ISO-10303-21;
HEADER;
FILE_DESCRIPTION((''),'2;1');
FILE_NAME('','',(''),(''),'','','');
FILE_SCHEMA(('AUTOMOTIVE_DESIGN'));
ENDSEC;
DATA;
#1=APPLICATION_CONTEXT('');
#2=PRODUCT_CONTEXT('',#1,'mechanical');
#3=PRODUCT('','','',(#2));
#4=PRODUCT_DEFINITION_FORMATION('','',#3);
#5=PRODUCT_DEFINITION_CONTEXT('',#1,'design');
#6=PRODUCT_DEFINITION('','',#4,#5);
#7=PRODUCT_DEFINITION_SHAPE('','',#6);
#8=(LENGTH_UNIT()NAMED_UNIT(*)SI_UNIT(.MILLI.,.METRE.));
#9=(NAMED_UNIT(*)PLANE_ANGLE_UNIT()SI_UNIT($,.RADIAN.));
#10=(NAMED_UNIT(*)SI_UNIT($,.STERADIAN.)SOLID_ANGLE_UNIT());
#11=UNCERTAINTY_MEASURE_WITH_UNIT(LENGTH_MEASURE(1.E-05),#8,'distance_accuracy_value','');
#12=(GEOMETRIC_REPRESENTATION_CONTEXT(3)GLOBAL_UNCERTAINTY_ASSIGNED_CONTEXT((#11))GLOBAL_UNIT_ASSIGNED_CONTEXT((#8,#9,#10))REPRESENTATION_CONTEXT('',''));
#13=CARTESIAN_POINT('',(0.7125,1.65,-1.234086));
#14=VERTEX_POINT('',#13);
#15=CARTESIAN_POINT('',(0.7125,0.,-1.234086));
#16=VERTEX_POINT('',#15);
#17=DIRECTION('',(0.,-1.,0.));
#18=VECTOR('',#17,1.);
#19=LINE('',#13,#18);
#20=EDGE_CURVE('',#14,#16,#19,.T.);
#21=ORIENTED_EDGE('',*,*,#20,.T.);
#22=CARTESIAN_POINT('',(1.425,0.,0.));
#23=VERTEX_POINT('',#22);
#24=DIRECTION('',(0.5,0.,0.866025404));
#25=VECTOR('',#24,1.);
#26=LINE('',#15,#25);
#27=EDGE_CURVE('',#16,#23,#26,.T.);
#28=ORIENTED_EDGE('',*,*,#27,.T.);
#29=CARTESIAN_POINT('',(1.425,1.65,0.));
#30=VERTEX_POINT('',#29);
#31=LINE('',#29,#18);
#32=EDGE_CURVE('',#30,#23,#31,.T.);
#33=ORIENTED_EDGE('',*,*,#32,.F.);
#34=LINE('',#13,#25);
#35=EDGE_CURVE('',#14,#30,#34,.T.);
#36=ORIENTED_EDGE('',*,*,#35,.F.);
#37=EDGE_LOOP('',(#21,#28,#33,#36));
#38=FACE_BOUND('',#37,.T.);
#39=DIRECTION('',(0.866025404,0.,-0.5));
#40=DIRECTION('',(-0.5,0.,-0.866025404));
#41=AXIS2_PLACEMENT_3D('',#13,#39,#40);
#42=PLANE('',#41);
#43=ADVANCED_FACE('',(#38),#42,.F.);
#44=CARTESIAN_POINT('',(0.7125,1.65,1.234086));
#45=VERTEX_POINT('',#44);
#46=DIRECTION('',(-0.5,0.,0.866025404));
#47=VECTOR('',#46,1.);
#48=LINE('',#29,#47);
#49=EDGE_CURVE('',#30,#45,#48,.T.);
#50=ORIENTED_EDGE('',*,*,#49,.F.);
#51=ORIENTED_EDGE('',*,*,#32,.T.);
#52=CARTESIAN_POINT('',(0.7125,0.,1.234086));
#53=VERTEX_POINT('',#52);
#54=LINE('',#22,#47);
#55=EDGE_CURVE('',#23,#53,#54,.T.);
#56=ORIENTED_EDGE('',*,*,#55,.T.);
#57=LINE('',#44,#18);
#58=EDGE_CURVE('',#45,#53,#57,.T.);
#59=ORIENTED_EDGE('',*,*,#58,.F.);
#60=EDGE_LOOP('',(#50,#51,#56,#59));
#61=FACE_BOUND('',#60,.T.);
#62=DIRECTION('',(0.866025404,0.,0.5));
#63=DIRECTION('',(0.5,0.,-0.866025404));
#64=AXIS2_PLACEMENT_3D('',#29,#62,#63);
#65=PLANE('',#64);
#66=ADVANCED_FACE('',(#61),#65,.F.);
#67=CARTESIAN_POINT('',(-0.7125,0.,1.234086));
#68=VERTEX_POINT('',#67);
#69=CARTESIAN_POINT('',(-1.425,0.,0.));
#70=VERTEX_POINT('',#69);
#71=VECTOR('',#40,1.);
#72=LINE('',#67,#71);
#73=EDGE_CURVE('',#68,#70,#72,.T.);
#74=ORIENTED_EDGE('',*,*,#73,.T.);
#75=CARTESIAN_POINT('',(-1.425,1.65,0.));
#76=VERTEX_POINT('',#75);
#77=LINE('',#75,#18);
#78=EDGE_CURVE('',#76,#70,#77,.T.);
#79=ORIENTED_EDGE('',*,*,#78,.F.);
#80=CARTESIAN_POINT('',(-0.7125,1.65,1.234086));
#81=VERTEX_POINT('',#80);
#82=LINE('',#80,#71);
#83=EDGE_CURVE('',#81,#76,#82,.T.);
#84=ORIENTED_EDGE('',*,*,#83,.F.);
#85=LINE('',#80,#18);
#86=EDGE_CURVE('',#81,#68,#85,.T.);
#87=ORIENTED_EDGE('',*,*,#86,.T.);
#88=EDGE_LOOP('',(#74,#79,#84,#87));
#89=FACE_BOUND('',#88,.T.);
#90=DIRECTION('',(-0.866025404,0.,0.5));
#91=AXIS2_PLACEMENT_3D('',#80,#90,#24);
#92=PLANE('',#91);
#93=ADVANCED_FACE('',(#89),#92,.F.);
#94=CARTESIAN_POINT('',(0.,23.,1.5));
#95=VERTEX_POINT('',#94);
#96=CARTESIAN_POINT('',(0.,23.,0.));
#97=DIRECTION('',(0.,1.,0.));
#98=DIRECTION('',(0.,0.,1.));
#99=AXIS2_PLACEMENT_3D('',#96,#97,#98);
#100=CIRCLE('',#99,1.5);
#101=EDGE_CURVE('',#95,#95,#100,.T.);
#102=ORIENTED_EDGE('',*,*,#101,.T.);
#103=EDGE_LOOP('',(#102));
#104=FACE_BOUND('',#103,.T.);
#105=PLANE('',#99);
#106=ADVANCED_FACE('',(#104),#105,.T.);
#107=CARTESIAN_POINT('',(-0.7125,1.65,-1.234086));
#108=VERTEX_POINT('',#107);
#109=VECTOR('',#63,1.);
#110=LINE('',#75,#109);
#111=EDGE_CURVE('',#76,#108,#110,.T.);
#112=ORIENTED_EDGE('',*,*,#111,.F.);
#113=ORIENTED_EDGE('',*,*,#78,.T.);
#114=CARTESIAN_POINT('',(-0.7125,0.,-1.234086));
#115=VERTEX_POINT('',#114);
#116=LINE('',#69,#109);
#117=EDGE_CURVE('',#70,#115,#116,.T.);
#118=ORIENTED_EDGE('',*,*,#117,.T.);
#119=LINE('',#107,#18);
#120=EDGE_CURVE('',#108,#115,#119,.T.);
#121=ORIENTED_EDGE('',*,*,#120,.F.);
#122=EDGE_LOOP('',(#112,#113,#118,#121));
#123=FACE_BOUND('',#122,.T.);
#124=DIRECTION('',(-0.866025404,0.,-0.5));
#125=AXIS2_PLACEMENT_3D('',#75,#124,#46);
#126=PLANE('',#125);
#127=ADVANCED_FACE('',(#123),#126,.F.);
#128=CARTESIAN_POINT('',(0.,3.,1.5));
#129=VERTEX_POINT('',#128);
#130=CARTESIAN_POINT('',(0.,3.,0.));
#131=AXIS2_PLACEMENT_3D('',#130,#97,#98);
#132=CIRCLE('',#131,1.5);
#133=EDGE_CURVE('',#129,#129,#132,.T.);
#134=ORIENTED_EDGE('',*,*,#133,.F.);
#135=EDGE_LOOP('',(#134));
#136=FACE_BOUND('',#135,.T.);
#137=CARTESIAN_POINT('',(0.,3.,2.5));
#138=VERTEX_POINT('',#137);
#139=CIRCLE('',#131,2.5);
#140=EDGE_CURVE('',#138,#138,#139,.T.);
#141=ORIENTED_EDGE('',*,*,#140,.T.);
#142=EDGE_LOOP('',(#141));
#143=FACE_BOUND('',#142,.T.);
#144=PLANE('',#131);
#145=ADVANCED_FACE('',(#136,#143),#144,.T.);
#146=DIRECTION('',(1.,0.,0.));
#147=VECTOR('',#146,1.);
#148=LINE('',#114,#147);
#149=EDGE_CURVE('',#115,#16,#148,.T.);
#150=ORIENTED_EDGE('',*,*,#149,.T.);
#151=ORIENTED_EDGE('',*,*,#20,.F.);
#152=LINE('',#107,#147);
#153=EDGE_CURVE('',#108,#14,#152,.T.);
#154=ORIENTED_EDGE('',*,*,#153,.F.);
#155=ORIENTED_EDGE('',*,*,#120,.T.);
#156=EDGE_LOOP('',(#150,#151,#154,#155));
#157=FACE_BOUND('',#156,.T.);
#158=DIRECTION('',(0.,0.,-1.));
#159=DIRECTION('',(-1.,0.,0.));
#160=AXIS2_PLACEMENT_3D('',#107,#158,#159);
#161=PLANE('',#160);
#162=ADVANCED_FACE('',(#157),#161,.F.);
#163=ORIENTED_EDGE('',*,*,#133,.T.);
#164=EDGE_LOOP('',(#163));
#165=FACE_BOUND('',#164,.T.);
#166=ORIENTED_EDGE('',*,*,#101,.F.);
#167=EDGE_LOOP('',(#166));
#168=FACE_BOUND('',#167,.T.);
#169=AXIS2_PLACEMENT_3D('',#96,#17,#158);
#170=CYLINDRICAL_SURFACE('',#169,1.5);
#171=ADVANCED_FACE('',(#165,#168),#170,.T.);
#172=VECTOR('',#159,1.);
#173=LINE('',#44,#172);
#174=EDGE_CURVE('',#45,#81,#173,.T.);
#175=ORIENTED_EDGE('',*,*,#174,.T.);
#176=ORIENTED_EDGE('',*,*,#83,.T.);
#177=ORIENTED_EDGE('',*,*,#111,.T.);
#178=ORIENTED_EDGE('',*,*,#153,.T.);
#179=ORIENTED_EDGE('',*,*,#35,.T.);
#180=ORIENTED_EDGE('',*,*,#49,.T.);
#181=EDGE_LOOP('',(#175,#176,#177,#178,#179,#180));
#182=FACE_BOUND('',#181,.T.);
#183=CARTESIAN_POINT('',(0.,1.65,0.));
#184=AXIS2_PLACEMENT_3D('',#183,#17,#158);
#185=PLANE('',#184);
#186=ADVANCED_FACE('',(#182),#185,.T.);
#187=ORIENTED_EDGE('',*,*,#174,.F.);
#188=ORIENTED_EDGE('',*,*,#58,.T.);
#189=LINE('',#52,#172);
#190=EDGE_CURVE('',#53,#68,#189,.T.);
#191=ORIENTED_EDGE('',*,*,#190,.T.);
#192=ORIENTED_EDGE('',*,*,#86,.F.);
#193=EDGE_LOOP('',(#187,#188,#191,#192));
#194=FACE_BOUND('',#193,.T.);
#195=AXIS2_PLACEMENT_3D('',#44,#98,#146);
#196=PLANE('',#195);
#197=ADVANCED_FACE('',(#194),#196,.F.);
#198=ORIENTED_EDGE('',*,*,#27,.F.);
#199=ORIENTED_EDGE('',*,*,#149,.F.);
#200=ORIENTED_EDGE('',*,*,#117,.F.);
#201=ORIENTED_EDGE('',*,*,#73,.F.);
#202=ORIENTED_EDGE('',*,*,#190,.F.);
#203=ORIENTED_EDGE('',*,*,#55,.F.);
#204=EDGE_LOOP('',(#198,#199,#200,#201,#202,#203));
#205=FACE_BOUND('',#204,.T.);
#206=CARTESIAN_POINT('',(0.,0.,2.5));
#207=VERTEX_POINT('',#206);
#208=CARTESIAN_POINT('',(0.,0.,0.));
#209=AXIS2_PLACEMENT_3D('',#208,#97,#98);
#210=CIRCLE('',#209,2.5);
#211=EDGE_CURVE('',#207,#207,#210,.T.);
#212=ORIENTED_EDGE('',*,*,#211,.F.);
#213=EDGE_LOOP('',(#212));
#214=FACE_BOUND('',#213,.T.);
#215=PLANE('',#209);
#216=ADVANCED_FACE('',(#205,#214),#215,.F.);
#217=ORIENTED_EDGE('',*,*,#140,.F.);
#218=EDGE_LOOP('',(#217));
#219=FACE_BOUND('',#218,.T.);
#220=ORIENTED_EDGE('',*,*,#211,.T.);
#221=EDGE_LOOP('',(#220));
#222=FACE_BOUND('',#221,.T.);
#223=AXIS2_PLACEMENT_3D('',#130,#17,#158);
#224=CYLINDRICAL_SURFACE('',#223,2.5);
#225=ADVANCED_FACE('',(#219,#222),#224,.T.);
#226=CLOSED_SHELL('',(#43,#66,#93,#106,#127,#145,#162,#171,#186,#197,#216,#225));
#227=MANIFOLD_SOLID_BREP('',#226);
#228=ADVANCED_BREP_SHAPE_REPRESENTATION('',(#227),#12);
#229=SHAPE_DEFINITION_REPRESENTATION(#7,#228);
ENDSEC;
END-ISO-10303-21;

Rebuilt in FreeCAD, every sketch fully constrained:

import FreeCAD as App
import Part
import Sketcher
Q = App.Units.Quantity


def add_polygon(sketch, points):
    """Adds a closed chain of lines whose ends are joined by coincident constraints."""
    first, n = sketch.GeometryCount, len(points)
    for a, b in zip(points, points[1:] + points[:1]):
        sketch.addGeometry(Part.LineSegment(App.Vector(*a, 0), App.Vector(*b, 0)), False)
    for i in range(n):
        sketch.addConstraint(Sketcher.Constraint("Coincident", first + i, 2, first + (i + 1) % n, 1))

doc = App.newDocument("Part")
body = doc.addObject("PartDesign::Body", "Body")

# Sketch on XZ plane
sketch1 = body.newObject("Sketcher::SketchObject", "Sketch")
sketch1.AttachmentSupport = (doc.getObject("XZ_Plane"), [""])
sketch1.MapMode = "FlatFace"
sketch1.addGeometry(Part.Circle(App.Vector(0, 0, 0), App.Vector(0, 0, 1), 2.5), False)
sketch1.addConstraint(Sketcher.Constraint("Coincident", 0, 3, -1, 1))
sketch1.addConstraint(Sketcher.Constraint("Diameter", 0, 5.0))
pad1 = body.newObject("PartDesign::Pad", "Pad")
pad1.Profile = sketch1
pad1.Length = 3
pad1.Reversed = True

# Sketch on XZ plane
sketch2 = body.newObject("Sketcher::SketchObject", "Sketch001")
sketch2.AttachmentSupport = (doc.getObject("XZ_Plane"), [""])
sketch2.MapMode = "FlatFace"
sketch2.AttachmentOffset = App.Placement(App.Vector(0, 0, -3), App.Rotation())
sketch2.addGeometry(Part.Circle(App.Vector(0, 0, 0), App.Vector(0, 0, 1), 1.5), False)
sketch2.addConstraint(Sketcher.Constraint("Coincident", 0, 3, -1, 1))
sketch2.addConstraint(Sketcher.Constraint("Diameter", 0, 3.0))
pad2 = body.newObject("PartDesign::Pad", "Pad001")
pad2.Profile = sketch2
pad2.Length = 20
pad2.Reversed = True

# Sketch on XZ plane
sketch3 = body.newObject("Sketcher::SketchObject", "Sketch002")
sketch3.AttachmentSupport = (doc.getObject("XZ_Plane"), [""])
sketch3.MapMode = "FlatFace"
add_polygon(sketch3, [(1.4, 0), (0.7, 1.2), (-0.7, 1.2), (-1.4, 0), (-0.7, -1.2), (0.7, -1.2)])  # lines 0-5
sketch3.addConstraint(Sketcher.Constraint("Horizontal", 1))
sketch3.addConstraint(Sketcher.Constraint("Horizontal", 4))
sketch3.addConstraint(Sketcher.Constraint("Symmetric", 0, 2, 3, 2, -1, 1))
sketch3.addConstraint(Sketcher.Constraint("Symmetric", 2, 2, 5, 2, -1, 1))
sketch3.addConstraint(Sketcher.Constraint("PointOnObject", 2, 2, -1))
sketch3.addConstraint(Sketcher.Constraint("Parallel", 2, 5))
sketch3.addConstraint(Sketcher.Constraint("Vertical", 1, 2, 3, 2))
sketch3.addConstraint(Sketcher.Constraint("Angle", 0, Q("120 deg")))
sketch3.addConstraint(Sketcher.Constraint("DistanceX", 1, 2, 1, 1, 1.425))
sketch3.addConstraint(Sketcher.Constraint("DistanceX", 2, 2, 5, 2, 2.85))
pocket1 = body.newObject("PartDesign::Pocket", "Pocket")
pocket1.Profile = sketch3
pocket1.Length = 1.65

doc.recompute()
